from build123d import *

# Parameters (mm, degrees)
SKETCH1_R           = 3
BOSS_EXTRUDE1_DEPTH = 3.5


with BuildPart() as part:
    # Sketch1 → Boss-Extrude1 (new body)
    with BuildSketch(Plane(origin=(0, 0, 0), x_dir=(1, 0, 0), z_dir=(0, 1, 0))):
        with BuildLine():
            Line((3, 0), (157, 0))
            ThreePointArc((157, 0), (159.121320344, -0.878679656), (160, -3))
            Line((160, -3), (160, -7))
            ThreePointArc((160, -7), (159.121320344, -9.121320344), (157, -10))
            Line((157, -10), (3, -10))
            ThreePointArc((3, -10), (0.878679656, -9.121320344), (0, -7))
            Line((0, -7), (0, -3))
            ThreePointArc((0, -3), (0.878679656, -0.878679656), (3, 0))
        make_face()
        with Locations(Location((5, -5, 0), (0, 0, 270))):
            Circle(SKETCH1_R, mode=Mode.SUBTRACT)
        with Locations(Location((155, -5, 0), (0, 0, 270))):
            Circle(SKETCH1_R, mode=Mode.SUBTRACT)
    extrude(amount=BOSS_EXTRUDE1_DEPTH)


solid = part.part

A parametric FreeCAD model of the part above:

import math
import FreeCAD as App
import Part
import Sketcher
from FreeCAD import Vector
Q = App.Units.Quantity

doc = App.newDocument("Part")
body = doc.addObject("PartDesign::Body", "Body")

sketch1 = body.newObject("Sketcher::SketchObject", "Sketch")
sketch1.AttachmentSupport = (doc.getObject("XZ_Plane"), [""])
sketch1.MapMode = "FlatFace"
sketch1.addGeometry(Part.LineSegment(Vector(157, 0, 0), Vector(3, 0, 0)), False)
sketch1.addGeometry(Part.ArcOfCircle(Part.Circle(Vector(3, 3, 0), Vector(0, 0, 1), 3), math.radians(180), math.radians(270)), False)
sketch1.addGeometry(Part.LineSegment(Vector(0, 3, 0), Vector(0, 7, 0)), False)
sketch1.addGeometry(Part.ArcOfCircle(Part.Circle(Vector(3, 7, 0), Vector(0, 0, 1), 3), math.radians(90), math.radians(180)), False)
sketch1.addGeometry(Part.LineSegment(Vector(3, 10, 0), Vector(157, 10, 0)), False)
sketch1.addGeometry(Part.ArcOfCircle(Part.Circle(Vector(157, 7, 0), Vector(0, 0, 1), 3), math.radians(0), math.radians(90)), False)
sketch1.addGeometry(Part.LineSegment(Vector(160, 7, 0), Vector(160, 3, 0)), False)
sketch1.addGeometry(Part.ArcOfCircle(Part.Circle(Vector(157, 3, 0), Vector(0, 0, 1), 3), math.radians(-90), math.radians(0)), False)
sketch1.addGeometry(Part.Circle(Vector(155, 5, 0), Vector(0, 0, 1), 3), False)
sketch1.addGeometry(Part.Circle(Vector(5, 5, 0), Vector(0, 0, 1), 3), False)
sketch1.addConstraint(Sketcher.Constraint("Tangent", 0, 2, 1, 2))
sketch1.addConstraint(Sketcher.Constraint("Tangent", 1, 1, 2, 1))
sketch1.addConstraint(Sketcher.Constraint("Tangent", 2, 2, 3, 2))
sketch1.addConstraint(Sketcher.Constraint("Tangent", 3, 1, 4, 1))
sketch1.addConstraint(Sketcher.Constraint("Tangent", 4, 2, 5, 2))
sketch1.addConstraint(Sketcher.Constraint("Tangent", 5, 1, 6, 1))
sketch1.addConstraint(Sketcher.Constraint("Tangent", 6, 2, 7, 2))
sketch1.addConstraint(Sketcher.Constraint("Tangent", 7, 1, 0, 1))
sketch1.addConstraint(Sketcher.Constraint("Horizontal", 0))
sketch1.addConstraint(Sketcher.Constraint("Vertical", 2))
sketch1.addConstraint(Sketcher.Constraint("Horizontal", 4))
sketch1.addConstraint(Sketcher.Constraint("Vertical", 6))
sketch1.addConstraint(Sketcher.Constraint("Equal", 1, 3))
sketch1.addConstraint(Sketcher.Constraint("Equal", 3, 5))
sketch1.addConstraint(Sketcher.Constraint("Equal", 5, 7))
sketch1.addConstraint(Sketcher.Constraint("Equal", 7, 8))
sketch1.addConstraint(Sketcher.Constraint("Equal", 8, 9))
sketch1.addConstraint(Sketcher.Constraint("PointOnObject", 0, 2, -1))
sketch1.addConstraint(Sketcher.Constraint("PointOnObject", 1, 1, -2))
sketch1.addConstraint(Sketcher.Constraint("Horizontal", 8, 3, 9, 3))
sketch1.addConstraint(Sketcher.Constraint("Diameter", 8, Q("6 mm")))
sketch1.addConstraint(Sketcher.Constraint("DistanceX", 0, 2, 0, 1, Q("154 mm")))
sketch1.addConstraint(Sketcher.Constraint("DistanceY", 2, 1, 2, 2, Q("4 mm")))
sketch1.addConstraint(Sketcher.Constraint("DistanceX", -1, 1, 8, 3, Q("155 mm")))
sketch1.addConstraint(Sketcher.Constraint("DistanceY", -1, 1, 8, 3, Q("5 mm")))
sketch1.addConstraint(Sketcher.Constraint("DistanceX", -1, 1, 9, 3, Q("5 mm")))
pad1 = body.newObject("PartDesign::Pad", "Pad")
pad1.Profile = sketch1
pad1.Length = 3.5
pad1.Reversed = True

doc.recompute()
